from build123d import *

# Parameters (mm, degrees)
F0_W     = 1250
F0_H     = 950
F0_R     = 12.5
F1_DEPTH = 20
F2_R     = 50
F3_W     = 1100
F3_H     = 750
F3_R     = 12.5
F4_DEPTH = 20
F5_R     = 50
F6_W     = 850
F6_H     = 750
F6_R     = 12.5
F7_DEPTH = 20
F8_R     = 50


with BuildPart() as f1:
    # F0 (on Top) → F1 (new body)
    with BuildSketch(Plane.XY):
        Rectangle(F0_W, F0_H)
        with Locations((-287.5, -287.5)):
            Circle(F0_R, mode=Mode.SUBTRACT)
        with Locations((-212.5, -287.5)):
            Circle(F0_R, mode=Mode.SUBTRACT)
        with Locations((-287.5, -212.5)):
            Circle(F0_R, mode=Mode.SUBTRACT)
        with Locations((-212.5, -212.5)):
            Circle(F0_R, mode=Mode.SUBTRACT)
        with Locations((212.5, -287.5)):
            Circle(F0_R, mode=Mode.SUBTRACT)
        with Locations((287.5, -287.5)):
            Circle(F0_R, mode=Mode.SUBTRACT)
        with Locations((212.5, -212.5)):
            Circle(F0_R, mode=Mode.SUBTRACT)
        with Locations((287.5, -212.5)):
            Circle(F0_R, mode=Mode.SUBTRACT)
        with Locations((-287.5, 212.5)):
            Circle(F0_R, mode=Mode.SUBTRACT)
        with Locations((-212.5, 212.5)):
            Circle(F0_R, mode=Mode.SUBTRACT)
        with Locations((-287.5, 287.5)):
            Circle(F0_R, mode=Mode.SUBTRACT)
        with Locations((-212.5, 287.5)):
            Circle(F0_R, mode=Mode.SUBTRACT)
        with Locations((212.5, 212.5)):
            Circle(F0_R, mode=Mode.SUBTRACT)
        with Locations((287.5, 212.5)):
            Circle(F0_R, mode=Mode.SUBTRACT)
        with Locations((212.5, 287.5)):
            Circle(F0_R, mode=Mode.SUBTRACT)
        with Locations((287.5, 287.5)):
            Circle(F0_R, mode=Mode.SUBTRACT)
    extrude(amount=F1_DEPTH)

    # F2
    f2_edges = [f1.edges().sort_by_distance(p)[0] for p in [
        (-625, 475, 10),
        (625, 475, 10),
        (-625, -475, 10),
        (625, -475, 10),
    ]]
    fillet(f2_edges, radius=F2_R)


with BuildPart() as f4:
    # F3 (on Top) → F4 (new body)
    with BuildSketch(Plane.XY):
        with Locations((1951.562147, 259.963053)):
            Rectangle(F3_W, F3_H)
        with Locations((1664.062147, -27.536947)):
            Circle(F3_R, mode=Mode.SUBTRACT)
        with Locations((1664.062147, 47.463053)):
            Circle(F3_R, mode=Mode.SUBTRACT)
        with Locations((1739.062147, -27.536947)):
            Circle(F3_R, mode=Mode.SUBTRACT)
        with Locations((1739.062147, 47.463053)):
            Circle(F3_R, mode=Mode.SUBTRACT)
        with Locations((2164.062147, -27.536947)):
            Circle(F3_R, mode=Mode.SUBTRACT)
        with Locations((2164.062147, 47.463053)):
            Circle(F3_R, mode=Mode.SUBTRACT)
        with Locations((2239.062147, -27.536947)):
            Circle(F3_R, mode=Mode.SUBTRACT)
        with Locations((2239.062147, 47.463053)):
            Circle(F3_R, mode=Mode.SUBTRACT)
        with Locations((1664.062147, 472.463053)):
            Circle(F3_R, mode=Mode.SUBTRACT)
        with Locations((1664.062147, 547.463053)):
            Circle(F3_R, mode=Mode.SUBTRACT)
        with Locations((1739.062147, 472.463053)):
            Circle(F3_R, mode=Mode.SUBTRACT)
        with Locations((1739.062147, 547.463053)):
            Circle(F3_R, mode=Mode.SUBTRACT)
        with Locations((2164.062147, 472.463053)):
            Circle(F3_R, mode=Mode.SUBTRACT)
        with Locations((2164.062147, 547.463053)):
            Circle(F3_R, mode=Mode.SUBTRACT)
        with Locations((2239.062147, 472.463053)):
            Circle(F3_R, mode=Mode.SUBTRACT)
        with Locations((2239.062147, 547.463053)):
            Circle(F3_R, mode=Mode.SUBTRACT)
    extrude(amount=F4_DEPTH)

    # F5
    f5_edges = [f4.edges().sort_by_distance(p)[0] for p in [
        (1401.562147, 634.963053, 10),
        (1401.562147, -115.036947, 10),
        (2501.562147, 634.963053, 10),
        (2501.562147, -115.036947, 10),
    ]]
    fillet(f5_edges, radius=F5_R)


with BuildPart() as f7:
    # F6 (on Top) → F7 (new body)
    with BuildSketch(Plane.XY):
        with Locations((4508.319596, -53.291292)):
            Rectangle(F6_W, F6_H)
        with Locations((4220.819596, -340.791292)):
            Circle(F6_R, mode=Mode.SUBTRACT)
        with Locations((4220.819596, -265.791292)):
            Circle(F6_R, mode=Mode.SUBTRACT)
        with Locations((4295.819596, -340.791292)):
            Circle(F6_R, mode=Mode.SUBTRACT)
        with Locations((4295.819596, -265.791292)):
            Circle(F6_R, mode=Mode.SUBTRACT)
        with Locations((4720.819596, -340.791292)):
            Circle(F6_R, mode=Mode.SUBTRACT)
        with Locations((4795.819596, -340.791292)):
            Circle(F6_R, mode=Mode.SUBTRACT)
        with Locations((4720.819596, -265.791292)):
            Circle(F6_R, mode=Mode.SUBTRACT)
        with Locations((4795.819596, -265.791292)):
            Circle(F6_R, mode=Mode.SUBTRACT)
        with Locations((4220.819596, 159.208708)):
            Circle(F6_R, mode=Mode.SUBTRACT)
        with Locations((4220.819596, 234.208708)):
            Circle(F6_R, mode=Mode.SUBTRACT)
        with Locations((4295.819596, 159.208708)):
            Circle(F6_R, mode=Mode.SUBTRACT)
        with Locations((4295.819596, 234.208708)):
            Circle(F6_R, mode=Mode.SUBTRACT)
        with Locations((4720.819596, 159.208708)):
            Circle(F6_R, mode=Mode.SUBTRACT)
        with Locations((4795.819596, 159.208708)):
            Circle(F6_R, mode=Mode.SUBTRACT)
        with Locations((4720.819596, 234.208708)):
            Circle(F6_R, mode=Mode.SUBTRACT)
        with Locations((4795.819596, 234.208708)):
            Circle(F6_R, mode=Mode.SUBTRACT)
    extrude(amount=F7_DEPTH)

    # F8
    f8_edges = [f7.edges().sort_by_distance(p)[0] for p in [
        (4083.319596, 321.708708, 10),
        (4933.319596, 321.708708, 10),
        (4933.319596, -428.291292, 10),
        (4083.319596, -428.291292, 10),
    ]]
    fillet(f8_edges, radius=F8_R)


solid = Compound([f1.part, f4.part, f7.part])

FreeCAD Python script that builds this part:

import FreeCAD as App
import Part
import Sketcher
from FreeCAD import Vector
Q = App.Units.Quantity


def edges_at(feature, points):
    """Names of the edges that pass closest to the given points."""
    edges = feature.Shape.Edges
    near = lambda p: min(range(len(edges)), key=lambda i: edges[i].distToShape(Part.Vertex(*p))[0])
    return sorted({f"Edge{near(p) + 1}" for p in points})

doc = App.newDocument("Part")
body = doc.addObject("PartDesign::Body", "Body")

# Sketch on XY plane
sketch1 = body.newObject("Sketcher::SketchObject", "Sketch")
sketch1.AttachmentSupport = (doc.getObject("XY_Plane"), [""])
sketch1.MapMode = "FlatFace"
sketch1.addGeometry([
    Part.LineSegment(Vector(-625, 475, 0), Vector(-625, -475, 0)),  # 0
    Part.LineSegment(Vector(-625, -475, 0), Vector(625, -475, 0)),  # 1
    Part.LineSegment(Vector(625, -475, 0), Vector(625, 475, 0)),  # 2
    Part.LineSegment(Vector(625, 475, 0), Vector(-625, 475, 0)),  # 3
    Part.Circle(Vector(-287.5, -287.5, 0), Vector(0, 0, 1), 12.5),  # 4
    Part.Circle(Vector(-212.5, -287.5, 0), Vector(0, 0, 1), 12.5),  # 5
    Part.Circle(Vector(-287.5, -212.5, 0), Vector(0, 0, 1), 12.5),  # 6
    Part.Circle(Vector(-212.5, -212.5, 0), Vector(0, 0, 1), 12.5),  # 7
    Part.Circle(Vector(212.5, -287.5, 0), Vector(0, 0, 1), 12.5),  # 8
    Part.Circle(Vector(287.5, -287.5, 0), Vector(0, 0, 1), 12.5),  # 9
    Part.Circle(Vector(212.5, -212.5, 0), Vector(0, 0, 1), 12.5),  # 10
    Part.Circle(Vector(287.5, -212.5, 0), Vector(0, 0, 1), 12.5),  # 11
    Part.Circle(Vector(-287.5, 212.5, 0), Vector(0, 0, 1), 12.5),  # 12
    Part.Circle(Vector(-212.5, 212.5, 0), Vector(0, 0, 1), 12.5),  # 13
    Part.Circle(Vector(-287.5, 287.5, 0), Vector(0, 0, 1), 12.5),  # 14
    Part.Circle(Vector(-212.5, 287.5, 0), Vector(0, 0, 1), 12.5),  # 15
    Part.Circle(Vector(212.5, 212.5, 0), Vector(0, 0, 1), 12.5),  # 16
    Part.Circle(Vector(287.5, 212.5, 0), Vector(0, 0, 1), 12.5),  # 17
    Part.Circle(Vector(212.5, 287.5, 0), Vector(0, 0, 1), 12.5),  # 18
    Part.Circle(Vector(287.5, 287.5, 0), Vector(0, 0, 1), 12.5),  # 19
], False)
sketch1.addConstraint([
    Sketcher.Constraint("Coincident", 0, 2, 1, 1),
    Sketcher.Constraint("Coincident", 1, 2, 2, 1),
    Sketcher.Constraint("Coincident", 2, 2, 3, 1),
    Sketcher.Constraint("Coincident", 3, 2, 0, 1),
    Sketcher.Constraint("Vertical", 0),
    Sketcher.Constraint("Horizontal", 1),
    Sketcher.Constraint("Vertical", 2),
    Sketcher.Constraint("Horizontal", 3),
    Sketcher.Constraint("Equal", 4, 5),
    Sketcher.Constraint("Equal", 5, 6),
    Sketcher.Constraint("Equal", 6, 7),
    Sketcher.Constraint("Equal", 7, 8),
    Sketcher.Constraint("Equal", 8, 9),
    Sketcher.Constraint("Equal", 9, 10),
    Sketcher.Constraint("Equal", 10, 11),
    Sketcher.Constraint("Equal", 11, 12),
    Sketcher.Constraint("Equal", 12, 13),
    Sketcher.Constraint("Equal", 13, 14),
    Sketcher.Constraint("Equal", 14, 15),
    Sketcher.Constraint("Equal", 15, 16),
    Sketcher.Constraint("Equal", 16, 17),
    Sketcher.Constraint("Equal", 17, 18),
    Sketcher.Constraint("Equal", 18, 19),
    Sketcher.Constraint("Symmetric", 11, 3, 12, 3, -1, 1),
    Sketcher.Constraint("Symmetric", 10, 3, 13, 3, -1, 1),
    Sketcher.Constraint("Symmetric", 9, 3, 14, 3, -1, 1),
    Sketcher.Constraint("Symmetric", 8, 3, 15, 3, -1, 1),
    Sketcher.Constraint("Symmetric", 7, 3, 16, 3, -1, 1),
    Sketcher.Constraint("Symmetric", 6, 3, 17, 3, -1, 1),
    Sketcher.Constraint("Symmetric", 5, 3, 18, 3, -1, 1),
    Sketcher.Constraint("Symmetric", 4, 3, 19, 3, -1, 1),
    Sketcher.Constraint("Symmetric", 0, 2, 2, 2, -1, 1),
    Sketcher.Constraint("Symmetric", 5, 3, 8, 3, -2),
    Sketcher.Constraint("Symmetric", 4, 3, 9, 3, -2),
    Sketcher.Constraint("Symmetric", 7, 3, 10, 3, -2),
    Sketcher.Constraint("Symmetric", 6, 3, 11, 3, -2),
    Sketcher.Constraint("Horizontal", 4, 3, 5, 3),
    Sketcher.Constraint("Horizontal", 6, 3, 7, 3),
    Sketcher.Constraint("Vertical", 4, 3, 6, 3),
    Sketcher.Constraint("Vertical", 5, 3, 7, 3),
    Sketcher.Constraint("Diameter", 4, Q("25 mm")),
    Sketcher.Constraint("DistanceX", 1, 1, 1, 2, Q("1250 mm")),
    Sketcher.Constraint("DistanceY", 0, 2, 0, 1, Q("950 mm")),
    Sketcher.Constraint("DistanceX", 4, 3, 5, 3, Q("75 mm")),
    Sketcher.Constraint("DistanceY", 4, 3, 6, 3, Q("75 mm")),
    Sketcher.Constraint("DistanceX", 5, 3, 8, 3, Q("425 mm")),
    Sketcher.Constraint("DistanceY", 6, 3, 12, 3, Q("425 mm")),
])
pad1 = body.newObject("PartDesign::Pad", "Pad")
pad1.Profile = sketch1
pad1.Length = 20
doc.recompute()

fillet = body.newObject("PartDesign::Fillet", "Fillet")
fillet.Base = (pad1, edges_at(pad1, [
    (-625, 475, 10),
    (625, 475, 10),
    (-625, -475, 10),
    (625, -475, 10),
]))
fillet.Radius = 50
body2 = doc.addObject("PartDesign::Body", "Body001")

# Sketch on XY plane
sketch2 = body2.newObject("Sketcher::SketchObject", "Sketch001")
sketch2.AttachmentSupport = (doc.getObject("XY_Plane001"), [""])
sketch2.MapMode = "FlatFace"
sketch2.addGeometry([
    Part.LineSegment(Vector(1401.562147, 634.963053, 0), Vector(1401.562147, -115.036947, 0)),  # 0
    Part.LineSegment(Vector(1401.562147, -115.036947, 0), Vector(2501.562147, -115.036947, 0)),  # 1
    Part.LineSegment(Vector(2501.562147, -115.036947, 0), Vector(2501.562147, 634.963053, 0)),  # 2
    Part.LineSegment(Vector(2501.562147, 634.963053, 0), Vector(1401.562147, 634.963053, 0)),  # 3
    Part.Circle(Vector(1664.062147, -27.536947, 0), Vector(0, 0, 1), 12.5),  # 4
    Part.Circle(Vector(1739.062147, -27.536947, 0), Vector(0, 0, 1), 12.5),  # 5
    Part.Circle(Vector(1664.062147, 47.463053, 0), Vector(0, 0, 1), 12.5),  # 6
    Part.Circle(Vector(1739.062147, 47.463053, 0), Vector(0, 0, 1), 12.5),  # 7
    Part.Circle(Vector(2164.062147, -27.536947, 0), Vector(0, 0, 1), 12.5),  # 8
    Part.Circle(Vector(2239.062147, -27.536947, 0), Vector(0, 0, 1), 12.5),  # 9
    Part.Circle(Vector(2164.062147, 47.463053, 0), Vector(0, 0, 1), 12.5),  # 10
    Part.Circle(Vector(2239.062147, 47.463053, 0), Vector(0, 0, 1), 12.5),  # 11
    Part.Circle(Vector(1664.062147, 472.463053, 0), Vector(0, 0, 1), 12.5),  # 12
    Part.Circle(Vector(1739.062147, 472.463053, 0), Vector(0, 0, 1), 12.5),  # 13
    Part.Circle(Vector(1664.062147, 547.463053, 0), Vector(0, 0, 1), 12.5),  # 14
    Part.Circle(Vector(1739.062147, 547.463053, 0), Vector(0, 0, 1), 12.5),  # 15
    Part.Circle(Vector(2164.062147, 472.463053, 0), Vector(0, 0, 1), 12.5),  # 16
    Part.Circle(Vector(2239.062147, 472.463053, 0), Vector(0, 0, 1), 12.5),  # 17
    Part.Circle(Vector(2164.062147, 547.463053, 0), Vector(0, 0, 1), 12.5),  # 18
    Part.Circle(Vector(2239.062147, 547.463053, 0), Vector(0, 0, 1), 12.5),  # 19
], False)
sketch2.addConstraint([
    Sketcher.Constraint("Coincident", 0, 2, 1, 1),
    Sketcher.Constraint("Coincident", 1, 2, 2, 1),
    Sketcher.Constraint("Coincident", 2, 2, 3, 1),
    Sketcher.Constraint("Coincident", 3, 2, 0, 1),
    Sketcher.Constraint("Vertical", 0),
    Sketcher.Constraint("Horizontal", 1),
    Sketcher.Constraint("Vertical", 2),
    Sketcher.Constraint("Horizontal", 3),
    Sketcher.Constraint("Equal", 4, 5),
    Sketcher.Constraint("Equal", 5, 6),
    Sketcher.Constraint("Equal", 6, 7),
    Sketcher.Constraint("Equal", 7, 8),
    Sketcher.Constraint("Equal", 8, 9),
    Sketcher.Constraint("Equal", 9, 10),
    Sketcher.Constraint("Equal", 10, 11),
    Sketcher.Constraint("Equal", 11, 12),
    Sketcher.Constraint("Equal", 12, 13),
    Sketcher.Constraint("Equal", 13, 14),
    Sketcher.Constraint("Equal", 14, 15),
    Sketcher.Constraint("Equal", 15, 16),
    Sketcher.Constraint("Equal", 16, 17),
    Sketcher.Constraint("Equal", 17, 18),
    Sketcher.Constraint("Equal", 18, 19),
    Sketcher.Constraint("Horizontal", 4, 3, 5, 3),
    Sketcher.Constraint("Horizontal", 6, 3, 7, 3),
    Sketcher.Constraint("Horizontal", 5, 3, 8, 3),
    Sketcher.Constraint("Horizontal", 8, 3, 9, 3),
    Sketcher.Constraint("Horizontal", 7, 3, 10, 3),
    Sketcher.Constraint("Horizontal", 10, 3, 11, 3),
    Sketcher.Constraint("Horizontal", 12, 3, 13, 3),
    Sketcher.Constraint("Horizontal", 14, 3, 15, 3),
    Sketcher.Constraint("Horizontal", 13, 3, 16, 3),
    Sketcher.Constraint("Horizontal", 16, 3, 17, 3),
    Sketcher.Constraint("Horizontal", 15, 3, 18, 3),
    Sketcher.Constraint("Horizontal", 18, 3, 19, 3),
    Sketcher.Constraint("Vertical", 4, 3, 6, 3),
    Sketcher.Constraint("Vertical", 5, 3, 7, 3),
    Sketcher.Constraint("Vertical", 8, 3, 10, 3),
    Sketcher.Constraint("Vertical", 9, 3, 11, 3),
    Sketcher.Constraint("Vertical", 6, 3, 12, 3),
    Sketcher.Constraint("Vertical", 7, 3, 13, 3),
    Sketcher.Constraint("Vertical", 12, 3, 14, 3),
    Sketcher.Constraint("Vertical", 13, 3, 15, 3),
    Sketcher.Constraint("Vertical", 10, 3, 16, 3),
    Sketcher.Constraint("Vertical", 11, 3, 17, 3),
    Sketcher.Constraint("Vertical", 16, 3, 18, 3),
    Sketcher.Constraint("Vertical", 17, 3, 19, 3),
    Sketcher.Constraint("Diameter", 4, Q("25 mm")),
    Sketcher.Constraint("DistanceX", 1, 1, 1, 2, Q("1100 mm")),
    Sketcher.Constraint("DistanceY", 0, 2, 0, 1, Q("750 mm")),
    Sketcher.Constraint("DistanceX", 4, 3, 5, 3, Q("75 mm")),
    Sketcher.Constraint("DistanceY", 4, 3, 6, 3, Q("75 mm")),
    Sketcher.Constraint("DistanceX", 5, 3, 8, 3, Q("425 mm")),
    Sketcher.Constraint("DistanceX", 8, 3, 9, 3, Q("75 mm")),
    Sketcher.Constraint("DistanceY", 6, 3, 12, 3, Q("425 mm")),
    Sketcher.Constraint("DistanceY", 12, 3, 14, 3, Q("75 mm")),
    Sketcher.Constraint("DistanceX", 0, 2, 4, 3, Q("262.5 mm")),
    Sketcher.Constraint("DistanceY", 0, 2, 4, 3, Q("87.5 mm")),
    Sketcher.Constraint("DistanceX", -1, 1, 4, 3, Q("1664.062147 mm")),
    Sketcher.Constraint("DistanceY", 4, 3, -1, 1, Q("27.536947 mm")),
])
pad2 = body2.newObject("PartDesign::Pad", "Pad001")
pad2.Profile = sketch2
pad2.Length = 20
doc.recompute()

fillet2 = body2.newObject("PartDesign::Fillet", "Fillet001")
fillet2.Base = (pad2, edges_at(pad2, [
    (1401.562, 634.963, 10),
    (1401.562, -115.037, 10),
    (2501.562, 634.963, 10),
    (2501.562, -115.037, 10),
]))
fillet2.Radius = 50
body3 = doc.addObject("PartDesign::Body", "Body002")

# Sketch on XY plane
sketch3 = body3.newObject("Sketcher::SketchObject", "Sketch002")
sketch3.AttachmentSupport = (doc.getObject("XY_Plane002"), [""])
sketch3.MapMode = "FlatFace"
sketch3.addGeometry([
    Part.LineSegment(Vector(4083.319596, 321.708708, 0), Vector(4083.319596, -428.291292, 0)),  # 0
    Part.LineSegment(Vector(4083.319596, -428.291292, 0), Vector(4933.319596, -428.291292, 0)),  # 1
    Part.LineSegment(Vector(4933.319596, -428.291292, 0), Vector(4933.319596, 321.708708, 0)),  # 2
    Part.LineSegment(Vector(4933.319596, 321.708708, 0), Vector(4083.319596, 321.708708, 0)),  # 3
    Part.Circle(Vector(4220.819596, -340.791292, 0), Vector(0, 0, 1), 12.5),  # 4
    Part.Circle(Vector(4295.819596, -340.791292, 0), Vector(0, 0, 1), 12.5),  # 5
    Part.Circle(Vector(4220.819596, -265.791292, 0), Vector(0, 0, 1), 12.5),  # 6
    Part.Circle(Vector(4295.819596, -265.791292, 0), Vector(0, 0, 1), 12.5),  # 7
    Part.Circle(Vector(4720.819596, -340.791292, 0), Vector(0, 0, 1), 12.5),  # 8
    Part.Circle(Vector(4795.819596, -340.791292, 0), Vector(0, 0, 1), 12.5),  # 9
    Part.Circle(Vector(4720.819596, -265.791292, 0), Vector(0, 0, 1), 12.5),  # 10
    Part.Circle(Vector(4795.819596, -265.791292, 0), Vector(0, 0, 1), 12.5),  # 11
    Part.Circle(Vector(4220.819596, 159.208708, 0), Vector(0, 0, 1), 12.5),  # 12
    Part.Circle(Vector(4295.819596, 159.208708, 0), Vector(0, 0, 1), 12.5),  # 13
    Part.Circle(Vector(4220.819596, 234.208708, 0), Vector(0, 0, 1), 12.5),  # 14
    Part.Circle(Vector(4295.819596, 234.208708, 0), Vector(0, 0, 1), 12.5),  # 15
    Part.Circle(Vector(4720.819596, 159.208708, 0), Vector(0, 0, 1), 12.5),  # 16
    Part.Circle(Vector(4795.819596, 159.208708, 0), Vector(0, 0, 1), 12.5),  # 17
    Part.Circle(Vector(4720.819596, 234.208708, 0), Vector(0, 0, 1), 12.5),  # 18
    Part.Circle(Vector(4795.819596, 234.208708, 0), Vector(0, 0, 1), 12.5),  # 19
], False)
sketch3.addConstraint([
    Sketcher.Constraint("Coincident", 0, 2, 1, 1),
    Sketcher.Constraint("Coincident", 1, 2, 2, 1),
    Sketcher.Constraint("Coincident", 2, 2, 3, 1),
    Sketcher.Constraint("Coincident", 3, 2, 0, 1),
    Sketcher.Constraint("Vertical", 0),
    Sketcher.Constraint("Horizontal", 1),
    Sketcher.Constraint("Vertical", 2),
    Sketcher.Constraint("Horizontal", 3),
    Sketcher.Constraint("Equal", 4, 5),
    Sketcher.Constraint("Equal", 5, 6),
    Sketcher.Constraint("Equal", 6, 7),
    Sketcher.Constraint("Equal", 7, 8),
    Sketcher.Constraint("Equal", 8, 9),
    Sketcher.Constraint("Equal", 9, 10),
    Sketcher.Constraint("Equal", 10, 11),
    Sketcher.Constraint("Equal", 11, 12),
    Sketcher.Constraint("Equal", 12, 13),
    Sketcher.Constraint("Equal", 13, 14),
    Sketcher.Constraint("Equal", 14, 15),
    Sketcher.Constraint("Equal", 15, 16),
    Sketcher.Constraint("Equal", 16, 17),
    Sketcher.Constraint("Equal", 17, 18),
    Sketcher.Constraint("Equal", 18, 19),
    Sketcher.Constraint("Horizontal", 4, 3, 5, 3),
    Sketcher.Constraint("Horizontal", 6, 3, 7, 3),
    Sketcher.Constraint("Horizontal", 5, 3, 8, 3),
    Sketcher.Constraint("Horizontal", 8, 3, 9, 3),
    Sketcher.Constraint("Horizontal", 7, 3, 10, 3),
    Sketcher.Constraint("Horizontal", 10, 3, 11, 3),
    Sketcher.Constraint("Horizontal", 12, 3, 13, 3),
    Sketcher.Constraint("Horizontal", 14, 3, 15, 3),
    Sketcher.Constraint("Horizontal", 13, 3, 16, 3),
    Sketcher.Constraint("Horizontal", 16, 3, 17, 3),
    Sketcher.Constraint("Horizontal", 15, 3, 18, 3),
    Sketcher.Constraint("Horizontal", 18, 3, 19, 3),
    Sketcher.Constraint("Vertical", 4, 3, 6, 3),
    Sketcher.Constraint("Vertical", 5, 3, 7, 3),
    Sketcher.Constraint("Vertical", 8, 3, 10, 3),
    Sketcher.Constraint("Vertical", 9, 3, 11, 3),
    Sketcher.Constraint("Vertical", 6, 3, 12, 3),
    Sketcher.Constraint("Vertical", 7, 3, 13, 3),
    Sketcher.Constraint("Vertical", 12, 3, 14, 3),
    Sketcher.Constraint("Vertical", 13, 3, 15, 3),
    Sketcher.Constraint("Vertical", 10, 3, 16, 3),
    Sketcher.Constraint("Vertical", 11, 3, 17, 3),
    Sketcher.Constraint("Vertical", 16, 3, 18, 3),
    Sketcher.Constraint("Vertical", 17, 3, 19, 3),
    Sketcher.Constraint("Diameter", 4, Q("25 mm")),
    Sketcher.Constraint("DistanceX", 1, 1, 1, 2, Q("850 mm")),
    Sketcher.Constraint("DistanceY", 0, 2, 0, 1, Q("750 mm")),
    Sketcher.Constraint("DistanceX", 4, 3, 5, 3, Q("75 mm")),
    Sketcher.Constraint("DistanceY", 4, 3, 6, 3, Q("75 mm")),
    Sketcher.Constraint("DistanceX", 5, 3, 8, 3, Q("425 mm")),
    Sketcher.Constraint("DistanceX", 8, 3, 9, 3, Q("75 mm")),
    Sketcher.Constraint("DistanceY", 6, 3, 12, 3, Q("425 mm")),
    Sketcher.Constraint("DistanceY", 12, 3, 14, 3, Q("75 mm")),
    Sketcher.Constraint("DistanceX", 0, 2, 4, 3, Q("137.5 mm")),
    Sketcher.Constraint("DistanceY", 0, 2, 4, 3, Q("87.5 mm")),
    Sketcher.Constraint("DistanceY", 4, 3, -1, 1, Q("340.791292 mm")),
    Sketcher.Constraint("DistanceX", -1, 1, 4, 3, Q("4220.819596 mm")),
])
pad3 = body3.newObject("PartDesign::Pad", "Pad002")
pad3.Profile = sketch3
pad3.Length = 20
doc.recompute()

fillet3 = body3.newObject("PartDesign::Fillet", "Fillet002")
fillet3.Base = (pad3, edges_at(pad3, [
    (4083.32, 321.709, 10),
    (4933.32, 321.709, 10),
    (4933.32, -428.291, 10),
    (4083.32, -428.291, 10),
]))
fillet3.Radius = 50

doc.recompute()
